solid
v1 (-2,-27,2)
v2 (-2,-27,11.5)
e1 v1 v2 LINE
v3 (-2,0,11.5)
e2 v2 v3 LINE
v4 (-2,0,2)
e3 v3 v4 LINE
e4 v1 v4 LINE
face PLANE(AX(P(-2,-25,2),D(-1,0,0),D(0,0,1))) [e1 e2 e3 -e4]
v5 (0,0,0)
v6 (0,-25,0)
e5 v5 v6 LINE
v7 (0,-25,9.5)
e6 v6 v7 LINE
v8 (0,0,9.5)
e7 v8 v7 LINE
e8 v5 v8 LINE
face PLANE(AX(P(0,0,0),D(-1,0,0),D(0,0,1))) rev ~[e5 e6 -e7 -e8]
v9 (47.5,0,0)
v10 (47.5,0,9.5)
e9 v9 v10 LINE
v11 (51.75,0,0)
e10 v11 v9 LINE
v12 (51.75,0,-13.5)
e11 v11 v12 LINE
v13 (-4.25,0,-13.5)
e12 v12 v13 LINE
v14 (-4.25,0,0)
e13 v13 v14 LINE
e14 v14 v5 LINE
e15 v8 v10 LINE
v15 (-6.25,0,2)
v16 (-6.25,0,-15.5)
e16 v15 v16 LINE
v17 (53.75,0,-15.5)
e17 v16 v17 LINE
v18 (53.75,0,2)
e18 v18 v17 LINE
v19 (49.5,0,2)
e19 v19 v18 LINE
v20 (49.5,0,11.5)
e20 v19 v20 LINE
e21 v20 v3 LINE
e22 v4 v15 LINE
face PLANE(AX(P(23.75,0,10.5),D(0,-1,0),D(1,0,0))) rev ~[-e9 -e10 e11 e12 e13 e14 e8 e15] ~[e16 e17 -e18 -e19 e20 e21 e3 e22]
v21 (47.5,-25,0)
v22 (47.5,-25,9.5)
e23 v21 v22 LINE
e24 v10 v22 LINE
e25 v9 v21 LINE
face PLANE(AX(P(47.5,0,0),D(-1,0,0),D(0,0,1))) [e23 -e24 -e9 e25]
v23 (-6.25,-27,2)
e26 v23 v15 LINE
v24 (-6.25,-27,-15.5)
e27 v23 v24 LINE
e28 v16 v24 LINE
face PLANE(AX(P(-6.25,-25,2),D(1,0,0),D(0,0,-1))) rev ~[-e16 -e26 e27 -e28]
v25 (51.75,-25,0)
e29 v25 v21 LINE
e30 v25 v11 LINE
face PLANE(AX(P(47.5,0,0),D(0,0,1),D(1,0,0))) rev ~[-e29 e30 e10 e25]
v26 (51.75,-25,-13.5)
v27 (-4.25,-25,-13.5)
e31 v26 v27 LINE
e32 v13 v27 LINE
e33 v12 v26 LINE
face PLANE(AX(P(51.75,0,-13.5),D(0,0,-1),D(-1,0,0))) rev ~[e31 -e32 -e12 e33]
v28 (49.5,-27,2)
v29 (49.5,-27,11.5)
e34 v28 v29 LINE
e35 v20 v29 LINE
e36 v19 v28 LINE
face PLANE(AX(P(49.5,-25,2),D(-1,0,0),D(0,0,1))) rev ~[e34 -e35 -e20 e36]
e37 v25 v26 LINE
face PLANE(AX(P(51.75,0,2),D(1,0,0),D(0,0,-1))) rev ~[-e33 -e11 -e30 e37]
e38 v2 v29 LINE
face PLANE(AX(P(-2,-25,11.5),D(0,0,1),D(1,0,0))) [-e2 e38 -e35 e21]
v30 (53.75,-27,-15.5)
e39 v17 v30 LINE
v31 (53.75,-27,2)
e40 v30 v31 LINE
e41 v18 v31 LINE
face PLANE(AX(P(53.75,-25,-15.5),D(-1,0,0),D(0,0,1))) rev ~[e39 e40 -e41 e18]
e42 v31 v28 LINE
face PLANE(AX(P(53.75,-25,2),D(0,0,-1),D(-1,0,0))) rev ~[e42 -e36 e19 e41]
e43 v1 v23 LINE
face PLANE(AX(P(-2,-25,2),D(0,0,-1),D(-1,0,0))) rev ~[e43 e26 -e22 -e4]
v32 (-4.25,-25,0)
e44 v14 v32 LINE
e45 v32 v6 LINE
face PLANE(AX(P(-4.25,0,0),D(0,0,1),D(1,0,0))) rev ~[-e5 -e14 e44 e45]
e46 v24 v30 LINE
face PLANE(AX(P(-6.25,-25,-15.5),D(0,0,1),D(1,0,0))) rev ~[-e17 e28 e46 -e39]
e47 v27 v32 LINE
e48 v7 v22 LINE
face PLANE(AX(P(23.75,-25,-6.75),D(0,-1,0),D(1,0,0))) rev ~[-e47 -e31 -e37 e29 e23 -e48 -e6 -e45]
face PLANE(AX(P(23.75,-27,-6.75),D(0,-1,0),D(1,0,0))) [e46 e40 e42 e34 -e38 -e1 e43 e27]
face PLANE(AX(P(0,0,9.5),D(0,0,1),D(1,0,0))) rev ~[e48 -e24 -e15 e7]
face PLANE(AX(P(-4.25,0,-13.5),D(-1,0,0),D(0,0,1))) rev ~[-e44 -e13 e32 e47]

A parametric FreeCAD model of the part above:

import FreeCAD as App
import Part
import Sketcher

V = App.Vector

doc = App.newDocument("Part")
body = doc.addObject("PartDesign::Body", "Body")

sketch1 = body.newObject("Sketcher::SketchObject", "Sketch")
sketch1.AttachmentSupport = (doc.getObject("XZ_Plane"), [""])
sketch1.MapMode = "FlatFace"
sketch1.addGeometry(Part.LineSegment(V(-2, 11.5, 0), V(-2, 2, 0)), False)
sketch1.addGeometry(Part.LineSegment(V(-2, 2, 0), V(-6.25, 2, 0)), False)
sketch1.addGeometry(Part.LineSegment(V(-6.25, 2, 0), V(-6.25, -15.5, 0)), False)
sketch1.addGeometry(Part.LineSegment(V(-6.25, -15.5, 0), V(53.75, -15.5, 0)), False)
sketch1.addGeometry(Part.LineSegment(V(53.75, -15.5, 0), V(53.75, 2, 0)), False)
sketch1.addGeometry(Part.LineSegment(V(53.75, 2, 0), V(51.75, 2, 0)), False)
sketch1.addGeometry(Part.LineSegment(V(51.75, 2, 0), V(51.75, -13.5, 0)), False)
sketch1.addGeometry(Part.LineSegment(V(51.75, -13.5, 0), V(-4.25, -13.5, 0)), False)
sketch1.addGeometry(Part.LineSegment(V(-4.25, -13.5, 0), V(-4.25, 0, 0)), False)
sketch1.addGeometry(Part.LineSegment(V(-4.25, 0, 0), V(0, 0, 0)), False)
sketch1.addGeometry(Part.LineSegment(V(0, 0, 0), V(0, 9.5, 0)), False)
sketch1.addGeometry(Part.LineSegment(V(0, 9.5, 0), V(47.5, 9.5, 0)), False)
sketch1.addGeometry(Part.LineSegment(V(47.5, 9.5, 0), V(47.5, 0, 0)), False)
sketch1.addGeometry(Part.LineSegment(V(47.5, 0, 0), V(49.5, 0, 0)), False)
sketch1.addGeometry(Part.LineSegment(V(49.5, 0, 0), V(49.5, 11.5, 0)), False)
sketch1.addGeometry(Part.LineSegment(V(49.5, 11.5, 0), V(-2, 11.5, 0)), False)
sketch1.addConstraint(Sketcher.Constraint("Coincident", 0, 2, 1, 1))
sketch1.addConstraint(Sketcher.Constraint("Coincident", 1, 2, 2, 1))
sketch1.addConstraint(Sketcher.Constraint("Coincident", 2, 2, 3, 1))
sketch1.addConstraint(Sketcher.Constraint("Coincident", 3, 2, 4, 1))
sketch1.addConstraint(Sketcher.Constraint("Coincident", 4, 2, 5, 1))
sketch1.addConstraint(Sketcher.Constraint("Coincident", 5, 2, 6, 1))
sketch1.addConstraint(Sketcher.Constraint("Coincident", 6, 2, 7, 1))
sketch1.addConstraint(Sketcher.Constraint("Coincident", 7, 2, 8, 1))
sketch1.addConstraint(Sketcher.Constraint("Coincident", 8, 2, 9, 1))
sketch1.addConstraint(Sketcher.Constraint("Coincident", 9, 2, 10, 1))
sketch1.addConstraint(Sketcher.Constraint("Coincident", 10, 2, 11, 1))
sketch1.addConstraint(Sketcher.Constraint("Coincident", 11, 2, 12, 1))
sketch1.addConstraint(Sketcher.Constraint("Coincident", 12, 2, 13, 1))
sketch1.addConstraint(Sketcher.Constraint("Coincident", 13, 2, 14, 1))
sketch1.addConstraint(Sketcher.Constraint("Coincident", 14, 2, 15, 1))
sketch1.addConstraint(Sketcher.Constraint("Coincident", 15, 2, 0, 1))
sketch1.addConstraint(Sketcher.Constraint("Vertical", 0))
sketch1.addConstraint(Sketcher.Constraint("Horizontal", 1))
sketch1.addConstraint(Sketcher.Constraint("Vertical", 2))
sketch1.addConstraint(Sketcher.Constraint("Horizontal", 3))
sketch1.addConstraint(Sketcher.Constraint("Vertical", 4))
sketch1.addConstraint(Sketcher.Constraint("Horizontal", 5))
sketch1.addConstraint(Sketcher.Constraint("Vertical", 6))
sketch1.addConstraint(Sketcher.Constraint("Horizontal", 7))
sketch1.addConstraint(Sketcher.Constraint("Vertical", 8))
sketch1.addConstraint(Sketcher.Constraint("Horizontal", 9))
sketch1.addConstraint(Sketcher.Constraint("Vertical", 10))
sketch1.addConstraint(Sketcher.Constraint("Horizontal", 11))
sketch1.addConstraint(Sketcher.Constraint("Vertical", 12))
sketch1.addConstraint(Sketcher.Constraint("Horizontal", 13))
sketch1.addConstraint(Sketcher.Constraint("Vertical", 14))
sketch1.addConstraint(Sketcher.Constraint("Horizontal", 15))
sketch1.addConstraint(Sketcher.Constraint("Coincident", 9, 2, -1, 1))
sketch1.addConstraint(Sketcher.Constraint("PointOnObject", 12, 2, -1))
sketch1.addConstraint(Sketcher.Constraint("Horizontal", 1, 2, 4, 2))
sketch1.addConstraint(Sketcher.Constraint("Equal", 1, 9))
sketch1.addConstraint(Sketcher.Constraint("Equal", 5, 13))
sketch1.addConstraint(Sketcher.Constraint("Equal", 0, 10))
sketch1.addConstraint(Sketcher.Constraint("DistanceX", 3, 1, 3, 2, 60.0))
sketch1.addConstraint(Sketcher.Constraint("DistanceX", 5, 2, 5, 1, 2.0))
sketch1.addConstraint(Sketcher.Constraint("DistanceX", 7, 2, 7, 1, 56.0))
sketch1.addConstraint(Sketcher.Constraint("DistanceX", 11, 1, 11, 2, 47.5))
sketch1.addConstraint(Sketcher.Constraint("DistanceY", 0, 2, 0, 1, 9.5))
sketch1.addConstraint(Sketcher.Constraint("DistanceY", 2, 2, 2, 1, 17.5))
sketch1.addConstraint(Sketcher.Constraint("DistanceY", 6, 2, 6, 1, 15.5))
sketch1.addConstraint(Sketcher.Constraint("DistanceY", 8, 1, 8, 2, 13.5))
sketch1.addConstraint(Sketcher.Constraint("DistanceX", 1, 2, 1, 1, 4.25))
pad1 = body.newObject("PartDesign::Pad", "Pad")
pad1.Profile = sketch1
pad1.Length = 25

sketch2 = body.newObject("Sketcher::SketchObject", "Sketch001")
sketch2.AttachmentSupport = (doc.getObject("XZ_Plane"), [""])
sketch2.MapMode = "FlatFace"
sketch2.AttachmentOffset = App.Placement(V(0, 0, 25), App.Rotation())
sketch2.addGeometry(Part.LineSegment(V(47.5, 2, 0), V(47.5, 0, 0)), False)
sketch2.addGeometry(Part.LineSegment(V(47.5, 0, 0), V(53.75, 0, 0)), False)
sketch2.addGeometry(Part.LineSegment(V(53.75, 0, 0), V(53.75, 2, 0)), False)
sketch2.addGeometry(Part.LineSegment(V(53.75, 2, 0), V(47.5, 2, 0)), False)
sketch2.addConstraint(Sketcher.Constraint("Coincident", 0, 2, 1, 1))
sketch2.addConstraint(Sketcher.Constraint("Coincident", 1, 2, 2, 1))
sketch2.addConstraint(Sketcher.Constraint("Coincident", 2, 2, 3, 1))
sketch2.addConstraint(Sketcher.Constraint("Coincident", 3, 2, 0, 1))
sketch2.addConstraint(Sketcher.Constraint("Vertical", 0))
sketch2.addConstraint(Sketcher.Constraint("Horizontal", 1))
sketch2.addConstraint(Sketcher.Constraint("Vertical", 2))
sketch2.addConstraint(Sketcher.Constraint("Horizontal", 3))
sketch2.addConstraint(Sketcher.Constraint("PointOnObject", 0, 2, -1))
sketch2.addConstraint(Sketcher.Constraint("DistanceY", 0, 2, 0, 1, 2.0))
sketch2.addConstraint(Sketcher.Constraint("DistanceX", 1, 1, 1, 2, 6.25))
sketch2.addConstraint(Sketcher.Constraint("DistanceX", -1, 1, 0, 2, 47.5))
pad2 = body.newObject("PartDesign::Pad", "Pad001")
pad2.Profile = sketch2
pad2.Length = 25
pad2.Reversed = True

sketch3 = body.newObject("Sketcher::SketchObject", "Sketch002")
sketch3.AttachmentSupport = (doc.getObject("XZ_Plane"), [""])
sketch3.MapMode = "FlatFace"
sketch3.AttachmentOffset = App.Placement(V(0, 0, 25), App.Rotation())
sketch3.addGeometry(Part.LineSegment(V(-6.25, 2, 0), V(-6.25, -15.5, 0)), False)
sketch3.addGeometry(Part.LineSegment(V(-6.25, -15.5, 0), V(53.75, -15.5, 0)), False)
sketch3.addGeometry(Part.LineSegment(V(53.75, -15.5, 0), V(53.75, 2, 0)), False)
sketch3.addGeometry(Part.LineSegment(V(53.75, 2, 0), V(49.5, 2, 0)), False)
sketch3.addGeometry(Part.LineSegment(V(49.5, 2, 0), V(49.5, 11.5, 0)), False)
sketch3.addGeometry(Part.LineSegment(V(49.5, 11.5, 0), V(-2, 11.5, 0)), False)
sketch3.addGeometry(Part.LineSegment(V(-2, 11.5, 0), V(-2, 2, 0)), False)
sketch3.addGeometry(Part.LineSegment(V(-2, 2, 0), V(-6.25, 2, 0)), False)
sketch3.addConstraint(Sketcher.Constraint("Coincident", 0, 2, 1, 1))
sketch3.addConstraint(Sketcher.Constraint("Coincident", 1, 2, 2, 1))
sketch3.addConstraint(Sketcher.Constraint("Coincident", 2, 2, 3, 1))
sketch3.addConstraint(Sketcher.Constraint("Coincident", 3, 2, 4, 1))
sketch3.addConstraint(Sketcher.Constraint("Coincident", 4, 2, 5, 1))
sketch3.addConstraint(Sketcher.Constraint("Coincident", 5, 2, 6, 1))
sketch3.addConstraint(Sketcher.Constraint("Coincident", 6, 2, 7, 1))
sketch3.addConstraint(Sketcher.Constraint("Coincident", 7, 2, 0, 1))
sketch3.addConstraint(Sketcher.Constraint("Vertical", 0))
sketch3.addConstraint(Sketcher.Constraint("Horizontal", 1))
sketch3.addConstraint(Sketcher.Constraint("Vertical", 2))
sketch3.addConstraint(Sketcher.Constraint("Horizontal", 3))
sketch3.addConstraint(Sketcher.Constraint("Vertical", 4))
sketch3.addConstraint(Sketcher.Constraint("Horizontal", 5))
sketch3.addConstraint(Sketcher.Constraint("Vertical", 6))
sketch3.addConstraint(Sketcher.Constraint("Horizontal", 7))
sketch3.addConstraint(Sketcher.Constraint("Horizontal", 3, 2, 6, 2))
sketch3.addConstraint(Sketcher.Constraint("Equal", 3, 7))
sketch3.addConstraint(Sketcher.Constraint("DistanceX", 1, 1, 1, 2, 60.0))
sketch3.addConstraint(Sketcher.Constraint("DistanceX", 5, 2, 5, 1, 51.5))
sketch3.addConstraint(Sketcher.Constraint("DistanceY", 0, 2, 0, 1, 17.5))
sketch3.addConstraint(Sketcher.Constraint("DistanceY", 4, 1, 4, 2, 9.5))
sketch3.addConstraint(Sketcher.Constraint("DistanceY", -1, 1, 2, 2, 2.0))
sketch3.addConstraint(Sketcher.Constraint("DistanceX", 5, 2, -1, 1, 2.0))
pad3 = body.newObject("PartDesign::Pad", "Pad002")
pad3.Profile = sketch3
pad3.Length = 2

doc.recompute()
